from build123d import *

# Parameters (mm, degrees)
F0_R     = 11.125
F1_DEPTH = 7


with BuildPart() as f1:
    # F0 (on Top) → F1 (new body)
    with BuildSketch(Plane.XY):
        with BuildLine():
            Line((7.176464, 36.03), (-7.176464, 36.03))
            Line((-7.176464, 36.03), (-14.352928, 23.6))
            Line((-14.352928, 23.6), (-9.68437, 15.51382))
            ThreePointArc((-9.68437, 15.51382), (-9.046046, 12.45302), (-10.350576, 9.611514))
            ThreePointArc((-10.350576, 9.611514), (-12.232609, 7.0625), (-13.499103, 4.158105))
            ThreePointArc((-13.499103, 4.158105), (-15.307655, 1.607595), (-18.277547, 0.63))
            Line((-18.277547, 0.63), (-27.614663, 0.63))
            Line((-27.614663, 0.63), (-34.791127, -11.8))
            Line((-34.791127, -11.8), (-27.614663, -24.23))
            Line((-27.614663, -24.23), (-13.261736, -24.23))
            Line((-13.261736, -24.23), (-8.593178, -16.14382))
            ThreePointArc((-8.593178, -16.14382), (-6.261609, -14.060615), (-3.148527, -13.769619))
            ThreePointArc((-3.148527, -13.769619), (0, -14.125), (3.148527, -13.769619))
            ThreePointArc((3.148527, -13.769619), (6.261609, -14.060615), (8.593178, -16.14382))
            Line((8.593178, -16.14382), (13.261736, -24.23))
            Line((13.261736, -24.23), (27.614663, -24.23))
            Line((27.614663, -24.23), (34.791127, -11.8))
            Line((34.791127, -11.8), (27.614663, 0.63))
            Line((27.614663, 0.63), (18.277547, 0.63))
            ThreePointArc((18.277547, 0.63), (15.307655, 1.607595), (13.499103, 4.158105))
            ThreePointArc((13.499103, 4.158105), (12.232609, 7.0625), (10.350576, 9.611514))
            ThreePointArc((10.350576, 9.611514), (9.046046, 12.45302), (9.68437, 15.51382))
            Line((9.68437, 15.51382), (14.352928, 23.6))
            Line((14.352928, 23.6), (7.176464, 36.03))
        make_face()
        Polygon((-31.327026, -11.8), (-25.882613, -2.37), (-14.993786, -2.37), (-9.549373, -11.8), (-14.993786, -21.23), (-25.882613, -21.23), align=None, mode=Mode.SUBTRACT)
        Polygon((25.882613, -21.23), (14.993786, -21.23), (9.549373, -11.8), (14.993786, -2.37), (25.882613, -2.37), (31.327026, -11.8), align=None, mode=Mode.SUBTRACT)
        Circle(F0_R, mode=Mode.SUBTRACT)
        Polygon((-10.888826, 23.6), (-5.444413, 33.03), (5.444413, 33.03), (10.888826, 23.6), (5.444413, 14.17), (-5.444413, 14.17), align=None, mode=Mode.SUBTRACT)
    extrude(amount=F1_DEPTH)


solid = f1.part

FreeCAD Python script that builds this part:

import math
import FreeCAD as App
import Part
import Sketcher

V = App.Vector
Q = App.Units.Quantity


def add_polygon(sketch, points):
    """Adds a closed chain of lines whose ends are joined by coincident constraints."""
    first, n = sketch.GeometryCount, len(points)
    for a, b in zip(points, points[1:] + points[:1]):
        sketch.addGeometry(Part.LineSegment(App.Vector(*a, 0), App.Vector(*b, 0)), False)
    for i in range(n):
        sketch.addConstraint(Sketcher.Constraint("Coincident", first + i, 2, first + (i + 1) % n, 1))

doc = App.newDocument("Part")
body = doc.addObject("PartDesign::Body", "Body")

# Sketch on XY plane
sketch1 = body.newObject("Sketcher::SketchObject", "Sketch")
sketch1.AttachmentSupport = (doc.getObject("XY_Plane"), [""])
sketch1.MapMode = "FlatFace"
sketch1.addGeometry(Part.LineSegment(V(7.176464, 36.03, 0), V(-7.176464, 36.03, 0)), False)  # 0
sketch1.addGeometry(Part.LineSegment(V(-7.176464, 36.03, 0), V(-14.352928, 23.6, 0)), False)  # 1
sketch1.addGeometry(Part.LineSegment(V(-14.352928, 23.6, 0), V(-9.68437, 15.51382, 0)), False)  # 2
sketch1.addGeometry(Part.ArcOfCircle(Part.Circle(V(-14.014497, 13.01382, 0), V(0, 0, 1), 5), math.radians(-42.879689), math.radians(30.000004)), False)  # 3
sketch1.addGeometry(Part.ArcOfCircle(Part.Circle(V(-0.000009, 0.000006, 0), V(0, 0, 1), 14.12499), math.radians(137.120302), math.radians(162.879701)), False)  # 4
sketch1.addGeometry(Part.ArcOfCircle(Part.Circle(V(-18.277547, 5.63, 0), V(0, 0, 1), 5), math.radians(-90), math.radians(-17.120306)), False)  # 5
sketch1.addGeometry(Part.LineSegment(V(-18.277547, 0.63, 0), V(-27.614663, 0.63, 0)), False)  # 6
sketch1.addGeometry(Part.LineSegment(V(-27.614663, 0.63, 0), V(-34.791127, -11.8, 0)), False)  # 7
sketch1.addGeometry(Part.LineSegment(V(-34.791127, -11.8, 0), V(-27.614663, -24.23, 0)), False)  # 8
sketch1.addGeometry(Part.LineSegment(V(-27.614663, -24.23, 0), V(-13.261736, -24.23, 0)), False)  # 9
sketch1.addGeometry(Part.LineSegment(V(-13.261736, -24.23, 0), V(-8.593178, -16.14382, 0)), False)  # 10
sketch1.addGeometry(Part.ArcOfCircle(Part.Circle(V(-4.263052, -18.643819, 0), V(0, 0, 1), 4.999999), math.radians(77.120287), math.radians(150.000009)), False)  # 11
sketch1.addGeometry(Part.ArcOfCircle(Part.Circle(V(0, 0.000007, 0), V(0, 0, 1), 14.125007), math.radians(-102.879684), math.radians(-77.120316)), False)  # 12
sketch1.addGeometry(Part.ArcOfCircle(Part.Circle(V(4.263052, -18.643819, 0), V(0, 0, 1), 4.999999), math.radians(29.999991), math.radians(102.879713)), False)  # 13
sketch1.addGeometry(Part.LineSegment(V(8.593178, -16.14382, 0), V(13.261736, -24.23, 0)), False)  # 14
sketch1.addGeometry(Part.LineSegment(V(13.261736, -24.23, 0), V(27.614663, -24.23, 0)), False)  # 15
sketch1.addGeometry(Part.LineSegment(V(27.614663, -24.23, 0), V(34.791127, -11.8, 0)), False)  # 16
sketch1.addGeometry(Part.LineSegment(V(34.791127, -11.8, 0), V(27.614663, 0.63, 0)), False)  # 17
sketch1.addGeometry(Part.LineSegment(V(27.614663, 0.63, 0), V(18.277547, 0.63, 0)), False)  # 18
sketch1.addGeometry(Part.ArcOfCircle(Part.Circle(V(18.277547, 5.63, 0), V(0, 0, 1), 5), math.radians(-162.879694), math.radians(-90)), False)  # 19
sketch1.addGeometry(Part.ArcOfCircle(Part.Circle(V(0.000009, 0.000006, 0), V(0, 0, 1), 14.12499), math.radians(17.120299), math.radians(42.879698)), False)  # 20
sketch1.addGeometry(Part.ArcOfCircle(Part.Circle(V(14.014497, 13.01382, 0), V(0, 0, 1), 5), math.radians(149.999996), math.radians(222.879689)), False)  # 21
sketch1.addGeometry(Part.LineSegment(V(9.68437, 15.51382, 0), V(14.352928, 23.6, 0)), False)  # 22
sketch1.addGeometry(Part.LineSegment(V(14.352928, 23.6, 0), V(7.176464, 36.03, 0)), False)  # 23
add_polygon(sketch1, [(-25.882613, -21.23), (-31.327026, -11.8), (-25.882613, -2.37), (-14.993786, -2.37), (-9.549373, -11.8), (-14.993786, -21.23)])  # lines 24-29
add_polygon(sketch1, [(31.327026, -11.8), (25.882613, -21.23), (14.993786, -21.23), (9.549373, -11.8), (14.993786, -2.37), (25.882613, -2.37)])  # lines 30-35
sketch1.addGeometry(Part.Circle(V(0, 0, 0), V(0, 0, 1), 11.125), False)  # 36
add_polygon(sketch1, [(-5.444413, 14.17), (-10.888826, 23.6), (-5.444413, 33.03), (5.444413, 33.03), (10.888826, 23.6), (5.444413, 14.17)])  # lines 37-42
sketch1.addConstraint(Sketcher.Constraint("Coincident", 0, 2, 1, 1))
sketch1.addConstraint(Sketcher.Constraint("Coincident", 1, 2, 2, 1))
sketch1.addConstraint(Sketcher.Constraint("Coincident", 2, 2, 3, 2))
sketch1.addConstraint(Sketcher.Constraint("Coincident", 3, 1, 4, 1))
sketch1.addConstraint(Sketcher.Constraint("Coincident", 4, 2, 5, 2))
sketch1.addConstraint(Sketcher.Constraint("Coincident", 5, 1, 6, 1))
sketch1.addConstraint(Sketcher.Constraint("Coincident", 6, 2, 7, 1))
sketch1.addConstraint(Sketcher.Constraint("Coincident", 7, 2, 8, 1))
sketch1.addConstraint(Sketcher.Constraint("Coincident", 8, 2, 9, 1))
sketch1.addConstraint(Sketcher.Constraint("Coincident", 9, 2, 10, 1))
sketch1.addConstraint(Sketcher.Constraint("Coincident", 10, 2, 11, 2))
sketch1.addConstraint(Sketcher.Constraint("Coincident", 11, 1, 12, 1))
sketch1.addConstraint(Sketcher.Constraint("Coincident", 12, 2, 13, 2))
sketch1.addConstraint(Sketcher.Constraint("Coincident", 13, 1, 14, 1))
sketch1.addConstraint(Sketcher.Constraint("Coincident", 14, 2, 15, 1))
sketch1.addConstraint(Sketcher.Constraint("Coincident", 15, 2, 16, 1))
sketch1.addConstraint(Sketcher.Constraint("Coincident", 16, 2, 17, 1))
sketch1.addConstraint(Sketcher.Constraint("Coincident", 17, 2, 18, 1))
sketch1.addConstraint(Sketcher.Constraint("Coincident", 18, 2, 19, 2))
sketch1.addConstraint(Sketcher.Constraint("Coincident", 19, 1, 20, 1))
sketch1.addConstraint(Sketcher.Constraint("Coincident", 20, 2, 21, 2))
sketch1.addConstraint(Sketcher.Constraint("Coincident", 21, 1, 22, 1))
sketch1.addConstraint(Sketcher.Constraint("Coincident", 22, 2, 23, 1))
sketch1.addConstraint(Sketcher.Constraint("Coincident", 23, 2, 0, 1))
sketch1.addConstraint(Sketcher.Constraint("Horizontal", 0))
sketch1.addConstraint(Sketcher.Constraint("Horizontal", 6))
sketch1.addConstraint(Sketcher.Constraint("Horizontal", 9))
sketch1.addConstraint(Sketcher.Constraint("Horizontal", 15))
sketch1.addConstraint(Sketcher.Constraint("Horizontal", 18))
sketch1.addConstraint(Sketcher.Constraint("Horizontal", 26))
sketch1.addConstraint(Sketcher.Constraint("Horizontal", 29))
sketch1.addConstraint(Sketcher.Constraint("Horizontal", 31))
sketch1.addConstraint(Sketcher.Constraint("Horizontal", 34))
sketch1.addConstraint(Sketcher.Constraint("Horizontal", 39))
sketch1.addConstraint(Sketcher.Constraint("Horizontal", 42))
sketch1.addConstraint(Sketcher.Constraint("Coincident", 12, 3, -1, 1))
sketch1.addConstraint(Sketcher.Constraint("Coincident", 36, 3, -1, 1))
sketch1.addConstraint(Sketcher.Constraint("Coincident", 12, 3, 4, 3))
sketch1.addConstraint(Sketcher.Constraint("Coincident", 20, 3, 12, 3))
sketch1.addConstraint(Sketcher.Constraint("Radius", 3, Q("5 mm")))
sketch1.addConstraint(Sketcher.Constraint("Radius", 5, Q("5 mm")))
sketch1.addConstraint(Sketcher.Constraint("Radius", 11, Q("4.999999 mm")))
sketch1.addConstraint(Sketcher.Constraint("Radius", 13, Q("4.999999 mm")))
sketch1.addConstraint(Sketcher.Constraint("Radius", 19, Q("5 mm")))
sketch1.addConstraint(Sketcher.Constraint("Radius", 21, Q("5 mm")))
sketch1.addConstraint(Sketcher.Constraint("Diameter", 36, Q("22.25 mm")))
sketch1.addConstraint(Sketcher.Constraint("DistanceY", 25, 2, 6, 2, Q("3 mm")))
sketch1.addConstraint(Sketcher.Constraint("DistanceY", 9, 2, 28, 2, Q("3 mm")))
sketch1.addConstraint(Sketcher.Constraint("DistanceY", 15, 2, 30, 2, Q("3 mm")))
sketch1.addConstraint(Sketcher.Constraint("DistanceY", 33, 2, 18, 2, Q("3 mm")))
sketch1.addConstraint(Sketcher.Constraint("DistanceY", 38, 2, 0, 2, Q("3 mm")))
sketch1.addConstraint(Sketcher.Constraint("DistanceY", -1, 1, 1, 2, Q("23.6 mm")))
sketch1.addConstraint(Sketcher.Constraint("DistanceY", 7, 2, -1, 1, Q("11.8 mm")))
sketch1.addConstraint(Sketcher.Constraint("DistanceY", 16, 2, -1, 1, Q("11.8 mm")))
sketch1.addConstraint(Sketcher.Constraint("DistanceY", -1, 1, 22, 2, Q("23.6 mm")))
sketch1.addConstraint(Sketcher.Constraint("DistanceY", 24, 2, -1, 1, Q("11.8 mm")))
sketch1.addConstraint(Sketcher.Constraint("DistanceY", 27, 2, -1, 1, Q("11.8 mm")))
sketch1.addConstraint(Sketcher.Constraint("DistanceY", 32, 2, -1, 1, Q("11.8 mm")))
sketch1.addConstraint(Sketcher.Constraint("DistanceY", 35, 2, -1, 1, Q("11.8 mm")))
sketch1.addConstraint(Sketcher.Constraint("DistanceY", -1, 1, 37, 2, Q("23.6 mm")))
sketch1.addConstraint(Sketcher.Constraint("DistanceY", -1, 1, 40, 2, Q("23.6 mm")))
sketch1.addConstraint(Sketcher.Constraint("DistanceY", 5, 3, 0, 2, Q("30.4 mm")))
sketch1.addConstraint(Sketcher.Constraint("DistanceY", 3, 3, 2, 2, Q("2.5 mm")))
sketch1.addConstraint(Sketcher.Constraint("DistanceY", 11, 3, 10, 2, Q("2.499999 mm")))
sketch1.addConstraint(Sketcher.Constraint("DistanceY", 13, 3, 10, 2, Q("2.499999 mm")))
sketch1.addConstraint(Sketcher.Constraint("DistanceY", 13, 3, 13, 1, Q("2.499999 mm")))
sketch1.addConstraint(Sketcher.Constraint("DistanceY", 21, 3, 21, 1, Q("2.5 mm")))
sketch1.addConstraint(Sketcher.Constraint("DistanceY", -1, 1, 5, 3, Q("5.63 mm")))
sketch1.addConstraint(Sketcher.Constraint("DistanceY", -1, 1, 19, 3, Q("5.63 mm")))
sketch1.addConstraint(Sketcher.Constraint("DistanceY", 8, 2, -1, 1, Q("24.23 mm")))
sketch1.addConstraint(Sketcher.Constraint("DistanceY", 14, 2, -1, 1, Q("24.23 mm")))
sketch1.addConstraint(Sketcher.Constraint("DistanceY", -1, 1, 41, 2, Q("14.17 mm")))
sketch1.addConstraint(Sketcher.Constraint("Radius", 4, Q("14.12499 mm")))
sketch1.addConstraint(Sketcher.Constraint("Radius", 20, Q("14.12499 mm")))
sketch1.addConstraint(Sketcher.Constraint("Radius", 12, Q("14.125007 mm")))
sketch1.addConstraint(Sketcher.Constraint("DistanceX", 5, 3, 13, 3, Q("22.540599 mm")))
sketch1.addConstraint(Sketcher.Constraint("DistanceY", 4, 3, 4, 2, Q("4.158099 mm")))
sketch1.addConstraint(Sketcher.Constraint("DistanceY", 11, 3, 11, 1, Q("4.8742 mm")))
sketch1.addConstraint(Sketcher.Constraint("DistanceY", 13, 3, 12, 2, Q("4.8742 mm")))
sketch1.addConstraint(Sketcher.Constraint("DistanceY", 20, 3, 19, 1, Q("4.158099 mm")))
sketch1.addConstraint(Sketcher.Constraint("DistanceX", 7, 2, 24, 2, Q("3.464101 mm")))
sketch1.addConstraint(Sketcher.Constraint("DistanceX", 27, 2, 12, 2, Q("12.6979 mm")))
sketch1.addConstraint(Sketcher.Constraint("DistanceX", 11, 1, 32, 2, Q("12.6979 mm")))
sketch1.addConstraint(Sketcher.Constraint("DistanceX", 35, 2, 16, 2, Q("3.464101 mm")))
sketch1.addConstraint(Sketcher.Constraint("DistanceX", 0, 2, 0, 1, Q("14.352928 mm")))
sketch1.addConstraint(Sketcher.Constraint("DistanceX", 6, 2, 6, 1, Q("9.337116 mm")))
sketch1.addConstraint(Sketcher.Constraint("DistanceX", 9, 1, 9, 2, Q("14.352927 mm")))
sketch1.addConstraint(Sketcher.Constraint("DistanceX", 15, 1, 15, 2, Q("14.352927 mm")))
sketch1.addConstraint(Sketcher.Constraint("DistanceX", 18, 2, 18, 1, Q("9.337116 mm")))
sketch1.addConstraint(Sketcher.Constraint("DistanceX", 26, 1, 26, 2, Q("10.888827 mm")))
sketch1.addConstraint(Sketcher.Constraint("DistanceX", 29, 2, 29, 1, Q("10.888827 mm")))
sketch1.addConstraint(Sketcher.Constraint("DistanceX", 31, 2, 31, 1, Q("10.888827 mm")))
sketch1.addConstraint(Sketcher.Constraint("DistanceX", 34, 1, 34, 2, Q("10.888827 mm")))
sketch1.addConstraint(Sketcher.Constraint("DistanceX", 39, 1, 39, 2, Q("10.888826 mm")))
sketch1.addConstraint(Sketcher.Constraint("DistanceX", 42, 2, 42, 1, Q("10.888826 mm")))
sketch1.addConstraint(Sketcher.Constraint("DistanceY", -1, 1, 3, 3, Q("13.01382 mm")))
sketch1.addConstraint(Sketcher.Constraint("DistanceY", -1, 1, 21, 3, Q("13.01382 mm")))
sketch1.addConstraint(Sketcher.Constraint("DistanceX", 0, 2, 21, 3, Q("21.190961 mm")))
sketch1.addConstraint(Sketcher.Constraint("DistanceX", 1, 2, 3, 3, Q("0.338431 mm")))
sketch1.addConstraint(Sketcher.Constraint("DistanceX", 3, 3, 3, 1, Q("3.663921 mm")))
sketch1.addConstraint(Sketcher.Constraint("DistanceX", 5, 1, 3, 1, Q("7.926971 mm")))
sketch1.addConstraint(Sketcher.Constraint("DistanceX", 7, 2, 5, 1, Q("16.51358 mm")))
sketch1.addConstraint(Sketcher.Constraint("DistanceX", 8, 2, 11, 3, Q("23.351611 mm")))
sketch1.addConstraint(Sketcher.Constraint("DistanceX", 12, 2, 14, 2, Q("10.113209 mm")))
sketch1.addConstraint(Sketcher.Constraint("DistanceX", 19, 3, 16, 2, Q("16.51358 mm")))
sketch1.addConstraint(Sketcher.Constraint("DistanceX", 21, 3, 18, 2, Q("4.26305 mm")))
sketch1.addConstraint(Sketcher.Constraint("DistanceX", 20, 2, 21, 3, Q("3.663921 mm")))
sketch1.addConstraint(Sketcher.Constraint("DistanceX", 21, 1, 22, 2, Q("4.668558 mm")))
sketch1.addConstraint(Sketcher.Constraint("DistanceX", 6, 2, 25, 2, Q("1.73205 mm")))
sketch1.addConstraint(Sketcher.Constraint("DistanceX", 28, 2, 9, 2, Q("1.73205 mm")))
sketch1.addConstraint(Sketcher.Constraint("DistanceX", 30, 2, 15, 2, Q("1.73205 mm")))
sketch1.addConstraint(Sketcher.Constraint("DistanceX", 33, 2, 18, 2, Q("3.283761 mm")))
sketch1.addConstraint(Sketcher.Constraint("DistanceX", 3, 3, 37, 2, Q("3.125671 mm")))
sketch1.addConstraint(Sketcher.Constraint("DistanceX", 0, 2, 38, 2, Q("1.732051 mm")))
sketch1.addConstraint(Sketcher.Constraint("DistanceX", 40, 2, 21, 3, Q("3.125671 mm")))
sketch1.addConstraint(Sketcher.Constraint("DistanceX", 41, 2, 19, 1, Q("8.05469 mm")))
pad1 = body.newObject("PartDesign::Pad", "Pad")
pad1.Profile = sketch1
pad1.Length = 7

doc.recompute()
